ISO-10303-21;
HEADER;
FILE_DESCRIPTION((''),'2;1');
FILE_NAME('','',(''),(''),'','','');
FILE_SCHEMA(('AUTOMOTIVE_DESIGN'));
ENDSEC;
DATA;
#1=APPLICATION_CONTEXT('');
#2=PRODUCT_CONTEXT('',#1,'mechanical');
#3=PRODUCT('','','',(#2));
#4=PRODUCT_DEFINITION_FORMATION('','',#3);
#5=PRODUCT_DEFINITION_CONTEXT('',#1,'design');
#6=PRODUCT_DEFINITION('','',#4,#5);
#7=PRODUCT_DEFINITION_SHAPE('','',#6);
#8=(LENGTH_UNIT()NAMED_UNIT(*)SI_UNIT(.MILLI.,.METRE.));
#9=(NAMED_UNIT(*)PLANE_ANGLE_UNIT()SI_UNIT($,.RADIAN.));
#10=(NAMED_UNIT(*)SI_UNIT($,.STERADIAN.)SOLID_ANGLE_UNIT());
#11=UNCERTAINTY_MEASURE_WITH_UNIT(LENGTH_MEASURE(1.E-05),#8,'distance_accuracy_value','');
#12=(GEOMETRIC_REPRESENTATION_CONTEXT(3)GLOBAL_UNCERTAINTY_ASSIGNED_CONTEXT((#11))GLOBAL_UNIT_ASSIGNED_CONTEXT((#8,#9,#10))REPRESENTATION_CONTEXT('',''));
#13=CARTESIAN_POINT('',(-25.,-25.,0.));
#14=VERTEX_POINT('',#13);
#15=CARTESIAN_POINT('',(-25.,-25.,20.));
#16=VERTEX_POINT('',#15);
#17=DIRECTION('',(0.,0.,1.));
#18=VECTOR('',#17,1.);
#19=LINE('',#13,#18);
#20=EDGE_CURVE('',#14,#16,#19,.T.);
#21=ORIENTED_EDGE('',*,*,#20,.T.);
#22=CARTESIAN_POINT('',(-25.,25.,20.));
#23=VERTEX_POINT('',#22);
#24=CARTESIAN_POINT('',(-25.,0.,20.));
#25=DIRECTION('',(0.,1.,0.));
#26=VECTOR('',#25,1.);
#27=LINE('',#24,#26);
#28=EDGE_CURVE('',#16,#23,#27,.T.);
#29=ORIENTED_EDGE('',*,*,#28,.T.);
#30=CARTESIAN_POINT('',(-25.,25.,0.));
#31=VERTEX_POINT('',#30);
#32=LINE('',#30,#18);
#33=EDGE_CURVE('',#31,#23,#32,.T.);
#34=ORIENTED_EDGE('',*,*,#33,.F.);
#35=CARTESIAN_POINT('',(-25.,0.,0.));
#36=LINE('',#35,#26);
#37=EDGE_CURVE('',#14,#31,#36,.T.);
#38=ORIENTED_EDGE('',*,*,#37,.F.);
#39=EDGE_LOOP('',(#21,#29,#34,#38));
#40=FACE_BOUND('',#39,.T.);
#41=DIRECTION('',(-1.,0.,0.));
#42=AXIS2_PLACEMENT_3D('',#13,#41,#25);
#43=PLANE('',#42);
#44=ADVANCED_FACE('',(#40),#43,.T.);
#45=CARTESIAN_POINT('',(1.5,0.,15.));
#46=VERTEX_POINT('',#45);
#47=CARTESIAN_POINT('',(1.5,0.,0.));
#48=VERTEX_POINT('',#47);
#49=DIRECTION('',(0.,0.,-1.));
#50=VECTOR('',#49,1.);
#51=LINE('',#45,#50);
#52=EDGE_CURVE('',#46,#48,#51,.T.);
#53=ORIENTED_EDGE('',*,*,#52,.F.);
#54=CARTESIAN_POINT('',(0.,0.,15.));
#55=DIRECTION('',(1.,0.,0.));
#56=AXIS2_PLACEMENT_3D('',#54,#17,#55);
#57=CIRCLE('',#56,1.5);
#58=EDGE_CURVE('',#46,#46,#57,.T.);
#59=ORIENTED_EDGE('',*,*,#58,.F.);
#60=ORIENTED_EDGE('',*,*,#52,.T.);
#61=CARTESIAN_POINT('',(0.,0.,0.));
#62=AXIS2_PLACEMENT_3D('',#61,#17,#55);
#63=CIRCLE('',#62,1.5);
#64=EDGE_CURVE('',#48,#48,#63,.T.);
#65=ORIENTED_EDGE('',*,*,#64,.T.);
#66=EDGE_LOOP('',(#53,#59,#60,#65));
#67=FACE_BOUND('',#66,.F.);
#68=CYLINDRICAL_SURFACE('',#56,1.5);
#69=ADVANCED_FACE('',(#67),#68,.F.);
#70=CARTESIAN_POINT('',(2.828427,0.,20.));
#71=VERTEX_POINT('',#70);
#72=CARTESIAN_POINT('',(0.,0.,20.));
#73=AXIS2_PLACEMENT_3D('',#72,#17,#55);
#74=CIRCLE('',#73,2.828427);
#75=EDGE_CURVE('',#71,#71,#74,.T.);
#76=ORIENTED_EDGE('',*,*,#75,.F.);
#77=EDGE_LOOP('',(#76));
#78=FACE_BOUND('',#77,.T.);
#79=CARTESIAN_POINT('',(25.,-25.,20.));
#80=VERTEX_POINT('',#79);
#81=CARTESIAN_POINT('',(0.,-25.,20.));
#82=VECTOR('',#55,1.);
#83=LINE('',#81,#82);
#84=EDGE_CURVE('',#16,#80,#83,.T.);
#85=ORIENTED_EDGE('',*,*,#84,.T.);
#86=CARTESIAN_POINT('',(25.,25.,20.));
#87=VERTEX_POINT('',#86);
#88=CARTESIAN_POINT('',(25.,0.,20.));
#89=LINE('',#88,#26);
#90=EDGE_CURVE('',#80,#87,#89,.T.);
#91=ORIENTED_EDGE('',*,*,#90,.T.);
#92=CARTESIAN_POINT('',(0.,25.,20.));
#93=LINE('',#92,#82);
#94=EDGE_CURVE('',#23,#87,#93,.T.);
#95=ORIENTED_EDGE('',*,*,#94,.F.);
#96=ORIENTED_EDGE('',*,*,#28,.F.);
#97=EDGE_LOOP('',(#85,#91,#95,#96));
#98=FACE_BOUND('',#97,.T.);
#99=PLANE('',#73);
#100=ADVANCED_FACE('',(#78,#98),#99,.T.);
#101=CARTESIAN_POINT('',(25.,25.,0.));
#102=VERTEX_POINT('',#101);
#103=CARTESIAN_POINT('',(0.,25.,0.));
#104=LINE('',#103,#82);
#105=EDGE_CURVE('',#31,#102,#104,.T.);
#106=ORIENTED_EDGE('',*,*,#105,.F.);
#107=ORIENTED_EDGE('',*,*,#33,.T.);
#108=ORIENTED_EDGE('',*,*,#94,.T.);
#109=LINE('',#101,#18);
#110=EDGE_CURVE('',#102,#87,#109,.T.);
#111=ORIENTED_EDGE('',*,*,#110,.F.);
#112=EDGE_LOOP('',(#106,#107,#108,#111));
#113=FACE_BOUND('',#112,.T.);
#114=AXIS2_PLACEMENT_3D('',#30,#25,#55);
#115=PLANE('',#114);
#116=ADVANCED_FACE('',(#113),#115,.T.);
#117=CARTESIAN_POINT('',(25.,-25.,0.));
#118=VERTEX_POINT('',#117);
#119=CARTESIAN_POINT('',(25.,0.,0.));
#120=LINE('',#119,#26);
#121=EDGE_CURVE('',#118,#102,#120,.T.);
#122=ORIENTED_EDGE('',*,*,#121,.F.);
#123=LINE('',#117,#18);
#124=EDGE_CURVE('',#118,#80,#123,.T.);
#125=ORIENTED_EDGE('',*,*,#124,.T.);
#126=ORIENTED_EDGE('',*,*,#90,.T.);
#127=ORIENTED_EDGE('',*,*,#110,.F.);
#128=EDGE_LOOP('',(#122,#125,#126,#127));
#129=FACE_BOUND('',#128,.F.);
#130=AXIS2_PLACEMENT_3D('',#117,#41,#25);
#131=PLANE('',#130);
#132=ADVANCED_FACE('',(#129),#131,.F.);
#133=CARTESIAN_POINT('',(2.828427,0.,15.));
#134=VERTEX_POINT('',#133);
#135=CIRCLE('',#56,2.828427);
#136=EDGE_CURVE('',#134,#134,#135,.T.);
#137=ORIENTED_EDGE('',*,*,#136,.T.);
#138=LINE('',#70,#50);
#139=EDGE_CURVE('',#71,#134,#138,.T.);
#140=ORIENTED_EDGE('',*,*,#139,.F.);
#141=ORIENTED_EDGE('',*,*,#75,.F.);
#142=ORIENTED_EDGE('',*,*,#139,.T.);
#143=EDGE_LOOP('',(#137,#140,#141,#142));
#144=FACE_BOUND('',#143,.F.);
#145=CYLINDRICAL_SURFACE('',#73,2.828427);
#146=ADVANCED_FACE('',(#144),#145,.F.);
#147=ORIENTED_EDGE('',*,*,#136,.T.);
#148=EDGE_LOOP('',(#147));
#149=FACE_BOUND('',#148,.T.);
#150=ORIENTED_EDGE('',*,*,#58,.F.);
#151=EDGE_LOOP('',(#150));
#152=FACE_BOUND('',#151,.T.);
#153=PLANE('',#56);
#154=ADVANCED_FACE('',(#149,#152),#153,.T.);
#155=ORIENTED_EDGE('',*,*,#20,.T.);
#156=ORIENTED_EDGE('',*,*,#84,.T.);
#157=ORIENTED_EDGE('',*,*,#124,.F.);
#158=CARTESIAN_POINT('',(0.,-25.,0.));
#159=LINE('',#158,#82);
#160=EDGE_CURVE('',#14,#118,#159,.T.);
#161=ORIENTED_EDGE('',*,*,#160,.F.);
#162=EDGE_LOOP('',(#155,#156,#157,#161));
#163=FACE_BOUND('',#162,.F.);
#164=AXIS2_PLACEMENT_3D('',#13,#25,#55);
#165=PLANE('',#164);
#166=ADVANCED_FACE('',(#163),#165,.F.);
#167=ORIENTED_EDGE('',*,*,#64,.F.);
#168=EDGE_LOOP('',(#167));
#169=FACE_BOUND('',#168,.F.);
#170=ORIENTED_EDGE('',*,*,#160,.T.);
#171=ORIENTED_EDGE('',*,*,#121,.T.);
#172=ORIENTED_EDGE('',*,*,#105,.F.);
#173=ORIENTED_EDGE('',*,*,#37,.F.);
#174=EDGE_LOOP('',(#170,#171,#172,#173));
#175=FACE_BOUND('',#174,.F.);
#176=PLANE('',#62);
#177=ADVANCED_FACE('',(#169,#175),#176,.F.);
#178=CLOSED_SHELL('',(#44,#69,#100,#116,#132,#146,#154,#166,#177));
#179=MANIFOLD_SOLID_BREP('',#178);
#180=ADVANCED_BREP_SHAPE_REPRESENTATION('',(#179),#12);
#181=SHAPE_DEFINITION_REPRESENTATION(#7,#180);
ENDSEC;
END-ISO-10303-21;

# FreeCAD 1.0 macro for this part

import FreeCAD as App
import Part
import Sketcher

doc = App.newDocument("Part")
body = doc.addObject("PartDesign::Body", "Body")

# Sketch on XY plane
sketch1 = doc.addObject("Sketcher::SketchObject", "Sketch")
body.addObject(sketch1)
sketch1.AttachmentSupport = (doc.XY_Plane, [""])
sketch1.MapMode = "FlatFace"
sketch1.addGeometry([
    Part.LineSegment(App.Vector(-25, 25, 0), App.Vector(-25, -25, 0)),
    Part.LineSegment(App.Vector(-25, -25, 0), App.Vector(25, -25, 0)),
    Part.LineSegment(App.Vector(25, -25, 0), App.Vector(25, 25, 0)),
    Part.LineSegment(App.Vector(25, 25, 0), App.Vector(-25, 25, 0)),
], False)
sketch1.addConstraint([
    Sketcher.Constraint("Coincident", 0, 2, 1, 1),
    Sketcher.Constraint("Coincident", 1, 2, 2, 1),
    Sketcher.Constraint("Coincident", 2, 2, 3, 1),
    Sketcher.Constraint("Coincident", 3, 2, 0, 1),
    Sketcher.Constraint("Vertical", 0),
    Sketcher.Constraint("Horizontal", 1),
    Sketcher.Constraint("Vertical", 2),
    Sketcher.Constraint("Horizontal", 3),
    Sketcher.Constraint("Symmetric", 0, 2, 2, 2, -1, 1),
    Sketcher.Constraint("Equal", 3, 0),
    Sketcher.Constraint("DistanceX", 1, 1, 1, 2, 50.0),
])
pad1 = doc.addObject("PartDesign::Pad", "Pad")
body.addObject(pad1)
pad1.Profile = sketch1
pad1.Length = 20

# Sketch on XY plane
sketch2 = doc.addObject("Sketcher::SketchObject", "Sketch001")
body.addObject(sketch2)
sketch2.AttachmentSupport = (doc.XY_Plane, [""])
sketch2.MapMode = "FlatFace"
sketch2.AttachmentOffset = App.Placement(App.Vector(0, 0, 20), App.Rotation())
sketch2.addGeometry(Part.Circle(App.Vector(0, 0, 0), App.Vector(0, 0, 1), 2.828427), False)
sketch2.addConstraint([
    Sketcher.Constraint("Coincident", 0, 3, -1, 1),
    Sketcher.Constraint("Diameter", 0, 5.656854),
])
pocket1 = doc.addObject("PartDesign::Pocket", "Pocket")
body.addObject(pocket1)
pocket1.Profile = sketch2
pocket1.Length = 5

# Sketch on XY plane
sketch3 = doc.addObject("Sketcher::SketchObject", "Sketch002")
body.addObject(sketch3)
sketch3.AttachmentSupport = (doc.XY_Plane, [""])
sketch3.MapMode = "FlatFace"
sketch3.AttachmentOffset = App.Placement(App.Vector(0, 0, 15), App.Rotation())
sketch3.addGeometry(Part.Circle(App.Vector(0, 0, 0), App.Vector(0, 0, 1), 1.5), False)
sketch3.addConstraint([
    Sketcher.Constraint("Coincident", 0, 3, -1, 1),
    Sketcher.Constraint("Diameter", 0, 3.0),
])
pocket2 = doc.addObject("PartDesign::Pocket", "Pocket001")
body.addObject(pocket2)
pocket2.Profile = sketch3
pocket2.Length = 25

doc.recompute()
